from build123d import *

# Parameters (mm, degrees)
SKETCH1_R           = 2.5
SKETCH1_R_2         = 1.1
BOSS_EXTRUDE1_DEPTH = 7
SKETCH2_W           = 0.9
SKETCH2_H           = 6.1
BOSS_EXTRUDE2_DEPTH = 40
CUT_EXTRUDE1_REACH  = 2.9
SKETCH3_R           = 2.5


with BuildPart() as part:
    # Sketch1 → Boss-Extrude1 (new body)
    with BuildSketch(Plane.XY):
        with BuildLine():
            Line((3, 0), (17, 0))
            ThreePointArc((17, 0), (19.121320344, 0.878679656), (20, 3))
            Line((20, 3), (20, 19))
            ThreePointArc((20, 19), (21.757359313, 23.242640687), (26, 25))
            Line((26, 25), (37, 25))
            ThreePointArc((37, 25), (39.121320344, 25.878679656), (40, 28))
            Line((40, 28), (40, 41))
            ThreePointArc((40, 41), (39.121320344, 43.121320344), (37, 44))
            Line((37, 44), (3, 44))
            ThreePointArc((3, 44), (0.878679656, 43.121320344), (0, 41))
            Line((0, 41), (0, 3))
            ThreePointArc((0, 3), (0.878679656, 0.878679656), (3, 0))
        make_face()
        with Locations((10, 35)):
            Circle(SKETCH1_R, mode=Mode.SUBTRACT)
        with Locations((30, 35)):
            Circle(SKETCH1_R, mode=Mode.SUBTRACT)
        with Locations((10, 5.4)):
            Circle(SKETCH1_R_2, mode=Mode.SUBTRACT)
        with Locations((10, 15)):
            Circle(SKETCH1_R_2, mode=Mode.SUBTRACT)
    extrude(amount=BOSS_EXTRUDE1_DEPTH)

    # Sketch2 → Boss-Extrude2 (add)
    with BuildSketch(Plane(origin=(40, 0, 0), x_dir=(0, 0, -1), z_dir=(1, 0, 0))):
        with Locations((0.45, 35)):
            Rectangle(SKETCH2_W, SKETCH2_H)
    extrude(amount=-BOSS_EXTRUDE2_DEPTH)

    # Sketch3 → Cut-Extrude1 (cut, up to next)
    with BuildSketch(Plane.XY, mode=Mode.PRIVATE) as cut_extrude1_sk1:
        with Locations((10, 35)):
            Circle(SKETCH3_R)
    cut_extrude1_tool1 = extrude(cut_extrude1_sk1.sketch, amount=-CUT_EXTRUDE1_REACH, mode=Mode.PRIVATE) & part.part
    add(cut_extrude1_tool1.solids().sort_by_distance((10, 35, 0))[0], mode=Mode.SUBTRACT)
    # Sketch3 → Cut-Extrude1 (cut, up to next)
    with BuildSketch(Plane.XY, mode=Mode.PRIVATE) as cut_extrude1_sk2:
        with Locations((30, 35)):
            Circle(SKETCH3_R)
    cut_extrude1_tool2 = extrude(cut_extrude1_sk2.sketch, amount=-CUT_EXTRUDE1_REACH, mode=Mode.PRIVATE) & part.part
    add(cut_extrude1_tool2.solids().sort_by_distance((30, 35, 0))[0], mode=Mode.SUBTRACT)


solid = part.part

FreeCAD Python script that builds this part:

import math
import FreeCAD as App
import Part
import Sketcher

V = App.Vector
Q = App.Units.Quantity

doc = App.newDocument("Part")
params = doc.addObject("Spreadsheet::Sheet", "Params")
for row, (alias, value) in enumerate([
    ("sketch1_diameter", "5 mm"),
    ("sketch1_radius", "3 mm"),
    ("sketch1_radius2", "6 mm"),
    ("sketch1_diameter2", "2.2 mm"),
    ("sketch1_width", "14 mm"),
    ("pad1_length", "7 mm"),
    ("sketch2_width", "6.1 mm"),
    ("sketch2_height", "0.9 mm"),
    ("pad2_length", "40 mm"),
    ("sketch3_diameter", "5 mm"),
    ("sketch4_diameter", "5 mm"),
], start=1):
    params.set(f"A{row}", alias)
    params.set(f"B{row}", "=" + value)
    params.setAlias(f"B{row}", alias)

body = doc.addObject("PartDesign::Body", "Body")

# Sketch on XY plane
sketch1 = body.newObject("Sketcher::SketchObject", "Sketch")
sketch1.AttachmentSupport = (doc.getObject("XY_Plane"), [""])
sketch1.MapMode = "FlatFace"
sketch1.addGeometry(Part.LineSegment(V(3, 0, 0), V(17, 0, 0)), False)
sketch1.addGeometry(Part.ArcOfCircle(Part.Circle(V(17, 3, 0), V(0, 0, 1), 3), math.radians(-90), math.radians(0)), False)
sketch1.addGeometry(Part.LineSegment(V(20, 3, 0), V(20, 19, 0)), False)
sketch1.addGeometry(Part.ArcOfCircle(Part.Circle(V(26, 19, 0), V(0, 0, 1), 6), math.radians(90), math.radians(180)), False)
sketch1.addGeometry(Part.LineSegment(V(26, 25, 0), V(37, 25, 0)), False)
sketch1.addGeometry(Part.ArcOfCircle(Part.Circle(V(37, 28, 0), V(0, 0, 1), 3), math.radians(-90), math.radians(0)), False)
sketch1.addGeometry(Part.LineSegment(V(40, 28, 0), V(40, 41, 0)), False)
sketch1.addGeometry(Part.ArcOfCircle(Part.Circle(V(37, 41, 0), V(0, 0, 1), 3), math.radians(0), math.radians(90)), False)
sketch1.addGeometry(Part.LineSegment(V(37, 44, 0), V(3, 44, 0)), False)
sketch1.addGeometry(Part.ArcOfCircle(Part.Circle(V(3, 41, 0), V(0, 0, 1), 3), math.radians(90), math.radians(180)), False)
sketch1.addGeometry(Part.LineSegment(V(0, 41, 0), V(0, 3, 0)), False)
sketch1.addGeometry(Part.ArcOfCircle(Part.Circle(V(3, 3, 0), V(0, 0, 1), 3), math.radians(180), math.radians(270)), False)
sketch1.addGeometry(Part.Circle(V(10, 5.4, 0), V(0, 0, 1), 1.1), False)
sketch1.addGeometry(Part.Circle(V(10, 15, 0), V(0, 0, 1), 1.1), False)
sketch1.addGeometry(Part.Circle(V(10, 35, 0), V(0, 0, 1), 2.5), False)
sketch1.addGeometry(Part.Circle(V(30, 35, 0), V(0, 0, 1), 2.5), False)
sketch1.addConstraint(Sketcher.Constraint("Tangent", 0, 2, 1, 1))
sketch1.addConstraint(Sketcher.Constraint("Tangent", 1, 2, 2, 1))
sketch1.addConstraint(Sketcher.Constraint("Tangent", 2, 2, 3, 2))
sketch1.addConstraint(Sketcher.Constraint("Tangent", 3, 1, 4, 1))
sketch1.addConstraint(Sketcher.Constraint("Tangent", 4, 2, 5, 1))
sketch1.addConstraint(Sketcher.Constraint("Tangent", 5, 2, 6, 1))
sketch1.addConstraint(Sketcher.Constraint("Tangent", 6, 2, 7, 1))
sketch1.addConstraint(Sketcher.Constraint("Tangent", 7, 2, 8, 1))
sketch1.addConstraint(Sketcher.Constraint("Tangent", 8, 2, 9, 1))
sketch1.addConstraint(Sketcher.Constraint("Tangent", 9, 2, 10, 1))
sketch1.addConstraint(Sketcher.Constraint("Tangent", 10, 2, 11, 1))
sketch1.addConstraint(Sketcher.Constraint("Tangent", 11, 2, 0, 1))
sketch1.addConstraint(Sketcher.Constraint("Horizontal", 0))
sketch1.addConstraint(Sketcher.Constraint("Vertical", 2))
sketch1.addConstraint(Sketcher.Constraint("Horizontal", 4))
sketch1.addConstraint(Sketcher.Constraint("Vertical", 6))
sketch1.addConstraint(Sketcher.Constraint("Horizontal", 8))
sketch1.addConstraint(Sketcher.Constraint("Vertical", 10))
sketch1.addConstraint(Sketcher.Constraint("Equal", 1, 5))
sketch1.addConstraint(Sketcher.Constraint("Equal", 5, 7))
sketch1.addConstraint(Sketcher.Constraint("Equal", 7, 9))
sketch1.addConstraint(Sketcher.Constraint("Equal", 9, 11))
sketch1.addConstraint(Sketcher.Constraint("Equal", 12, 13))
sketch1.addConstraint(Sketcher.Constraint("Equal", 14, 15))
sketch1.addConstraint(Sketcher.Constraint("PointOnObject", 0, 2, -1))
sketch1.addConstraint(Sketcher.Constraint("PointOnObject", 9, 2, -2))
sketch1.addConstraint(Sketcher.Constraint("Horizontal", 14, 3, 15, 3))
sketch1.addConstraint(Sketcher.Constraint("Vertical", 12, 3, 13, 3))
sketch1.addConstraint(Sketcher.Constraint("Vertical", 13, 3, 14, 3))
sketch1.addConstraint(Sketcher.Constraint("Diameter", 14, Q("5 mm")))
sketch1.addConstraint(Sketcher.Constraint("Radius", 1, Q("3 mm")))
sketch1.addConstraint(Sketcher.Constraint("Radius", 3, Q("6 mm")))
sketch1.addConstraint(Sketcher.Constraint("Diameter", 12, Q("2.2 mm")))
sketch1.addConstraint(Sketcher.Constraint("DistanceX", 0, 1, 0, 2, Q("14 mm")))
sketch1.addConstraint(Sketcher.Constraint("DistanceX", 4, 1, 4, 2, Q("11 mm")))
sketch1.addConstraint(Sketcher.Constraint("DistanceY", 2, 1, 2, 2, Q("16 mm")))
sketch1.addConstraint(Sketcher.Constraint("DistanceY", 6, 1, 6, 2, Q("13 mm")))
sketch1.addConstraint(Sketcher.Constraint("DistanceX", -1, 1, 12, 3, Q("10 mm")))
sketch1.addConstraint(Sketcher.Constraint("DistanceY", -1, 1, 13, 3, Q("15 mm")))
sketch1.addConstraint(Sketcher.Constraint("DistanceY", -1, 1, 14, 3, Q("35 mm")))
sketch1.addConstraint(Sketcher.Constraint("DistanceX", -1, 1, 15, 3, Q("30 mm")))
sketch1.addConstraint(Sketcher.Constraint("DistanceY", -1, 1, 12, 3, Q("5.4 mm")))
sketch1.setExpression("Constraints[29]", "Params.sketch1_diameter")
sketch1.setExpression("Constraints[30]", "Params.sketch1_radius")
sketch1.setExpression("Constraints[31]", "Params.sketch1_radius2")
sketch1.setExpression("Constraints[32]", "Params.sketch1_diameter2")
sketch1.setExpression("Constraints[33]", "Params.sketch1_width")
pad1 = body.newObject("PartDesign::Pad", "Pad")
pad1.Profile = sketch1
pad1.setExpression("Length", "Params.pad1_length")

# Sketch on YZ plane
sketch2 = body.newObject("Sketcher::SketchObject", "Sketch001")
sketch2.AttachmentSupport = (doc.getObject("YZ_Plane"), [""])
sketch2.MapMode = "FlatFace"
sketch2.AttachmentOffset = App.Placement(V(0, 0, 40), App.Rotation())
sketch2.addGeometry(Part.LineSegment(V(38, 0, 0), V(31.9, 0, 0)), False)
sketch2.addGeometry(Part.LineSegment(V(31.9, 0, 0), V(31.9, -0.9, 0)), False)
sketch2.addGeometry(Part.LineSegment(V(31.9, -0.9, 0), V(38, -0.9, 0)), False)
sketch2.addGeometry(Part.LineSegment(V(38, -0.9, 0), V(38, 0, 0)), False)
sketch2.addConstraint(Sketcher.Constraint("Coincident", 0, 2, 1, 1))
sketch2.addConstraint(Sketcher.Constraint("Coincident", 1, 2, 2, 1))
sketch2.addConstraint(Sketcher.Constraint("Coincident", 2, 2, 3, 1))
sketch2.addConstraint(Sketcher.Constraint("Coincident", 3, 2, 0, 1))
sketch2.addConstraint(Sketcher.Constraint("Horizontal", 0))
sketch2.addConstraint(Sketcher.Constraint("Vertical", 1))
sketch2.addConstraint(Sketcher.Constraint("Horizontal", 2))
sketch2.addConstraint(Sketcher.Constraint("Vertical", 3))
sketch2.addConstraint(Sketcher.Constraint("PointOnObject", 0, 2, -1))
sketch2.addConstraint(Sketcher.Constraint("DistanceX", 0, 2, 0, 1, Q("6.1 mm")))
sketch2.addConstraint(Sketcher.Constraint("DistanceY", 1, 2, 1, 1, Q("0.9 mm")))
sketch2.addConstraint(Sketcher.Constraint("DistanceX", -1, 1, 0, 2, Q("31.95 mm")))
sketch2.setExpression("Constraints[9]", "Params.sketch2_width")
sketch2.setExpression("Constraints[10]", "Params.sketch2_height")
pad2 = body.newObject("PartDesign::Pad", "Pad001")
pad2.Profile = sketch2
pad2.setExpression("Length", "Params.pad2_length")
pad2.Reversed = True

# Sketch on XY plane
sketch3 = body.newObject("Sketcher::SketchObject", "Sketch002")
sketch3.AttachmentSupport = (doc.getObject("XY_Plane"), [""])
sketch3.MapMode = "FlatFace"
sketch3.addGeometry(Part.Circle(V(10, 35, 0), V(0, 0, 1), 2.5), False)
sketch3.addConstraint(Sketcher.Constraint("Diameter", 0, Q("5 mm")))
sketch3.addConstraint(Sketcher.Constraint("DistanceX", -1, 1, 0, 3, Q("10 mm")))
sketch3.addConstraint(Sketcher.Constraint("DistanceY", -1, 1, 0, 3, Q("35 mm")))
sketch3.setExpression("Constraints[0]", "Params.sketch3_diameter")
pocket1 = body.newObject("PartDesign::Pocket", "Pocket")
pocket1.Profile = sketch3
pocket1.Type = "UpToFirst"

# Sketch on XY plane
sketch4 = body.newObject("Sketcher::SketchObject", "Sketch003")
sketch4.AttachmentSupport = (doc.getObject("XY_Plane"), [""])
sketch4.MapMode = "FlatFace"
sketch4.addGeometry(Part.Circle(V(30, 35, 0), V(0, 0, 1), 2.5), False)
sketch4.addConstraint(Sketcher.Constraint("Diameter", 0, Q("5 mm")))
sketch4.addConstraint(Sketcher.Constraint("DistanceX", -1, 1, 0, 3, Q("30 mm")))
sketch4.addConstraint(Sketcher.Constraint("DistanceY", -1, 1, 0, 3, Q("35 mm")))
sketch4.setExpression("Constraints[0]", "Params.sketch4_diameter")
pocket2 = body.newObject("PartDesign::Pocket", "Pocket001")
pocket2.Profile = sketch4
pocket2.Type = "UpToFirst"

doc.recompute()
